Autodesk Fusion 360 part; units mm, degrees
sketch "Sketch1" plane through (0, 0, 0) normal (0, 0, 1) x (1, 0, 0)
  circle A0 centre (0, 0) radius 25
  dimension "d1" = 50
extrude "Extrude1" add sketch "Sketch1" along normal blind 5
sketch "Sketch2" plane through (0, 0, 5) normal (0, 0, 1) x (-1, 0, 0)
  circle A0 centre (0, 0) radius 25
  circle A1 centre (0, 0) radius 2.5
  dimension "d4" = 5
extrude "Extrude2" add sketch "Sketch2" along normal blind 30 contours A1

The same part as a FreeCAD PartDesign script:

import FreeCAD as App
import Part
import Sketcher
from FreeCAD import Vector
Q = App.Units.Quantity

doc = App.newDocument("Part")
body = doc.addObject("PartDesign::Body", "Body")

sketch1 = body.newObject("Sketcher::SketchObject", "Sketch")
sketch1.AttachmentSupport = (doc.getObject("XY_Plane"), [""])
sketch1.MapMode = "FlatFace"
sketch1.addGeometry(Part.Circle(Vector(0, 0, 0), Vector(0, 0, 1), 25), False)
sketch1.addConstraint([
    Sketcher.Constraint("Coincident", 0, 3, -1, 1),
    Sketcher.Constraint("Diameter", 0, Q("50 mm")),
])
pad1 = body.newObject("PartDesign::Pad", "Pad")
pad1.Profile = sketch1
pad1.Length = 5

sketch2 = body.newObject("Sketcher::SketchObject", "Sketch001")
sketch2.AttachmentSupport = (doc.getObject("XY_Plane"), [""])
sketch2.MapMode = "FlatFace"
sketch2.AttachmentOffset = App.Placement(Vector(0, 0, 5), App.Rotation())
sketch2.addGeometry(Part.Circle(Vector(0, 0, 0), Vector(0, 0, 1), 2.5), False)
sketch2.addConstraint([
    Sketcher.Constraint("Coincident", 0, 3, -1, 1),
    Sketcher.Constraint("Diameter", 0, Q("5 mm")),
])
pad2 = body.newObject("PartDesign::Pad", "Pad001")
pad2.Profile = sketch2
pad2.Length = 30

doc.recompute()
